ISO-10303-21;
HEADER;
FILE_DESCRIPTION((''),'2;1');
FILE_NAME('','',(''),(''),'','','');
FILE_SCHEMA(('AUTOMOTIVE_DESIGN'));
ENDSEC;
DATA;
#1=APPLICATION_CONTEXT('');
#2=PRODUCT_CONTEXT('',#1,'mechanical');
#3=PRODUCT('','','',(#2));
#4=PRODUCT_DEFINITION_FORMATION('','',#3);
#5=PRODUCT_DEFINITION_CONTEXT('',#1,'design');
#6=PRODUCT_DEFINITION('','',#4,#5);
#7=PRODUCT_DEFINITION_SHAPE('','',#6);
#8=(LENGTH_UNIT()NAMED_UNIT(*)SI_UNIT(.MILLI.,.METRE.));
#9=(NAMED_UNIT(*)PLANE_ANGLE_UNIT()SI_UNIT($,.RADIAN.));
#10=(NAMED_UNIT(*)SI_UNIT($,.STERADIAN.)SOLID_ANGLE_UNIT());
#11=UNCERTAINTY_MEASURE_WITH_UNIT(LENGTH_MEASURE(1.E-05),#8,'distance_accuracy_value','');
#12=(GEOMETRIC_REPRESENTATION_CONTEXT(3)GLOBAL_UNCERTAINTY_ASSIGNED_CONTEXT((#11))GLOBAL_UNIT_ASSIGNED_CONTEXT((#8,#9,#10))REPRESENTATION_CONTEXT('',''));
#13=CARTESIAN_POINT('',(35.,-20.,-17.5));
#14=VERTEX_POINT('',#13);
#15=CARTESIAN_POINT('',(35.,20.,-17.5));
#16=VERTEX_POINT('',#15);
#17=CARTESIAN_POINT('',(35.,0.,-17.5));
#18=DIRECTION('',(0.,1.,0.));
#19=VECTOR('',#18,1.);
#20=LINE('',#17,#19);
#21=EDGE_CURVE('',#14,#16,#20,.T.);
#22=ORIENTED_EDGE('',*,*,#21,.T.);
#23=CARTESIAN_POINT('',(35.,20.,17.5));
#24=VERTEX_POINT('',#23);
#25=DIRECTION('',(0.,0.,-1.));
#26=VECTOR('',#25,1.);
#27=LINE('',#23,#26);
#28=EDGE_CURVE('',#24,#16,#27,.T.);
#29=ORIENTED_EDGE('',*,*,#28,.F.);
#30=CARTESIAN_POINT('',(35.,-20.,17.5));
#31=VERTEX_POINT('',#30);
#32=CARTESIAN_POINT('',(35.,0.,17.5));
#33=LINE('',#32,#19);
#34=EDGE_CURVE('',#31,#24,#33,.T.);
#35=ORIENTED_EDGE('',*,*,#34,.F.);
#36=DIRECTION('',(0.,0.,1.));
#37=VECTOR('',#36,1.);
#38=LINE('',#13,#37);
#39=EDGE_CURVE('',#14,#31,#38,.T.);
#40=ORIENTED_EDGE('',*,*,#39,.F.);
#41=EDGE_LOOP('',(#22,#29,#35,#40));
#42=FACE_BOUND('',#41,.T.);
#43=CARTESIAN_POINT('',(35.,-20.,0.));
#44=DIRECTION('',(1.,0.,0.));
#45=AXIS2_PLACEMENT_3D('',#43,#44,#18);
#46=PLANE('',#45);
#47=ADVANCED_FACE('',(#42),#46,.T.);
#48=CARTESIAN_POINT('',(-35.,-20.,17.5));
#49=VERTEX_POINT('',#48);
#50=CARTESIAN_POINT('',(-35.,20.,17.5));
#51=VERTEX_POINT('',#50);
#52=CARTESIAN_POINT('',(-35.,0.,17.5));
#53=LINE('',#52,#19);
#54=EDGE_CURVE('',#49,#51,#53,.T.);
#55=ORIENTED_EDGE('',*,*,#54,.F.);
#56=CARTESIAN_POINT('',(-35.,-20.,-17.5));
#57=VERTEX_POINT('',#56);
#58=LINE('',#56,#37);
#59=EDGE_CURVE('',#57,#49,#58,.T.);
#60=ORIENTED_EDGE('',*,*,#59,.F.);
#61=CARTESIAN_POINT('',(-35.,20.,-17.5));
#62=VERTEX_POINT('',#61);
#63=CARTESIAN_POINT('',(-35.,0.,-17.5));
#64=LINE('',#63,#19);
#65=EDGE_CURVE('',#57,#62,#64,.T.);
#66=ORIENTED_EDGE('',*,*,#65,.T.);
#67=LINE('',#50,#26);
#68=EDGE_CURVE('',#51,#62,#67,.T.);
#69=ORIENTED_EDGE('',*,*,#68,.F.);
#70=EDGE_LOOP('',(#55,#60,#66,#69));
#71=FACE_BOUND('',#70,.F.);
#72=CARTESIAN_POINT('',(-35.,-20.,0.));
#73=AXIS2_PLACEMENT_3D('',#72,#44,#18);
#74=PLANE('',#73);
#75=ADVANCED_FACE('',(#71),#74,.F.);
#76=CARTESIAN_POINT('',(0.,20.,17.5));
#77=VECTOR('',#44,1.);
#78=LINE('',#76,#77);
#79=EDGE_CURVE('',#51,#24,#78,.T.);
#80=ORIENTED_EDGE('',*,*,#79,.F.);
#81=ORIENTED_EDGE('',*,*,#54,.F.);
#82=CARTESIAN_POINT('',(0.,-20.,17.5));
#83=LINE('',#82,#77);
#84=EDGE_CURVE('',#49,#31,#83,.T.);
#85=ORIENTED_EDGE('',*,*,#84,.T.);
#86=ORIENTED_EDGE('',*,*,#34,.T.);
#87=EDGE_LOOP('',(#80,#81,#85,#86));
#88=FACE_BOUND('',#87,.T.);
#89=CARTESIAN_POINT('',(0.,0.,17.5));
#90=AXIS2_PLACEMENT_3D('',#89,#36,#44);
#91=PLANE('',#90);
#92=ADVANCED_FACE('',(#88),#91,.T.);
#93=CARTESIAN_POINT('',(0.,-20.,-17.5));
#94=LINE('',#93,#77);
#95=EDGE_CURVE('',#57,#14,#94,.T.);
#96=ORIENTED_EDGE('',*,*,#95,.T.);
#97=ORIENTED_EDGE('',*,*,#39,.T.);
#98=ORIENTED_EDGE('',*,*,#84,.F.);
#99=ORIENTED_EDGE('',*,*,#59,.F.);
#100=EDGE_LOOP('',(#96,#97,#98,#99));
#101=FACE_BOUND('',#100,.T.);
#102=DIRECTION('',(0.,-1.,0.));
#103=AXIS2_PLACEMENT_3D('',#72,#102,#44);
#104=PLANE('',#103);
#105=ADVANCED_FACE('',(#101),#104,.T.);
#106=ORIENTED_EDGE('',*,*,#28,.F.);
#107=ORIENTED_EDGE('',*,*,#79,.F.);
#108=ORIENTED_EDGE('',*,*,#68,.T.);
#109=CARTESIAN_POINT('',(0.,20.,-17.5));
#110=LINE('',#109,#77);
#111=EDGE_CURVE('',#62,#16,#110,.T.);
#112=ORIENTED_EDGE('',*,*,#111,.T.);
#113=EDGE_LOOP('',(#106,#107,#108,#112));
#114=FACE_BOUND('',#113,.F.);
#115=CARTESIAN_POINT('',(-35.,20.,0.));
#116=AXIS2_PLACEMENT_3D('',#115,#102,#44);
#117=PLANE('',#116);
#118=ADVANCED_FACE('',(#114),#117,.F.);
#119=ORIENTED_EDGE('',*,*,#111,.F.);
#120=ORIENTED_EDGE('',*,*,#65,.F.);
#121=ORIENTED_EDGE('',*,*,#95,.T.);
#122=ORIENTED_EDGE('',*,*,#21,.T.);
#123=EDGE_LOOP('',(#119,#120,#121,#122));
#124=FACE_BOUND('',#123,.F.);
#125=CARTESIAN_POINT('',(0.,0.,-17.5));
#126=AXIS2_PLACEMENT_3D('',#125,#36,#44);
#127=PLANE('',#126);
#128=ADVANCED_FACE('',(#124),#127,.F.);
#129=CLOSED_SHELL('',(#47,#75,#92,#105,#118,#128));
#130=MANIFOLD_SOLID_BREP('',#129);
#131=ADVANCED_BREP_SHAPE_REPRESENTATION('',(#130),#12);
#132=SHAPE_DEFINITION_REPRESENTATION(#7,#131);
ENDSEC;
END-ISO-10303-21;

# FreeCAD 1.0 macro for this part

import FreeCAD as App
import Part
import Sketcher

V = App.Vector
Q = App.Units.Quantity


def add_polygon(sketch, points):
    """Adds a closed chain of lines whose ends are joined by coincident constraints."""
    first, n = sketch.GeometryCount, len(points)
    for a, b in zip(points, points[1:] + points[:1]):
        sketch.addGeometry(Part.LineSegment(App.Vector(*a, 0), App.Vector(*b, 0)), False)
    for i in range(n):
        sketch.addConstraint(Sketcher.Constraint("Coincident", first + i, 2, first + (i + 1) % n, 1))

doc = App.newDocument("Part")
params = doc.addObject("Spreadsheet::Sheet", "Params")
for row, (alias, value) in enumerate([
    ("sketch1_width", "70 mm"),
    ("sketch1_height", "40 mm"),
    ("pad1_length", "35 mm"),
], start=1):
    params.set(f"A{row}", alias)
    params.set(f"B{row}", "=" + value)
    params.setAlias(f"B{row}", alias)

body = doc.addObject("PartDesign::Body", "Body")

sketch1 = body.newObject("Sketcher::SketchObject", "Sketch")
sketch1.AttachmentSupport = (doc.getObject("XY_Plane"), [""])
sketch1.MapMode = "FlatFace"
add_polygon(sketch1, [(-35, 20), (-35, -20), (35, -20), (35, 20)])
sketch1.addConstraint([
    Sketcher.Constraint("Vertical", 0),
    Sketcher.Constraint("Horizontal", 1),
    Sketcher.Constraint("Vertical", 2),
    Sketcher.Constraint("Horizontal", 3),
    Sketcher.Constraint("Symmetric", 0, 2, 2, 2, -1, 1),
    Sketcher.Constraint("DistanceX", 1, 1, 1, 2, Q("70 mm")),
    Sketcher.Constraint("DistanceY", 0, 2, 0, 1, Q("40 mm")),
])
sketch1.setExpression("Constraints[9]", "Params.sketch1_width")
sketch1.setExpression("Constraints[10]", "Params.sketch1_height")
pad1 = body.newObject("PartDesign::Pad", "Pad")
pad1.Profile = sketch1
pad1.setExpression("Length", "Params.pad1_length")
pad1.Midplane = True

doc.recompute()
